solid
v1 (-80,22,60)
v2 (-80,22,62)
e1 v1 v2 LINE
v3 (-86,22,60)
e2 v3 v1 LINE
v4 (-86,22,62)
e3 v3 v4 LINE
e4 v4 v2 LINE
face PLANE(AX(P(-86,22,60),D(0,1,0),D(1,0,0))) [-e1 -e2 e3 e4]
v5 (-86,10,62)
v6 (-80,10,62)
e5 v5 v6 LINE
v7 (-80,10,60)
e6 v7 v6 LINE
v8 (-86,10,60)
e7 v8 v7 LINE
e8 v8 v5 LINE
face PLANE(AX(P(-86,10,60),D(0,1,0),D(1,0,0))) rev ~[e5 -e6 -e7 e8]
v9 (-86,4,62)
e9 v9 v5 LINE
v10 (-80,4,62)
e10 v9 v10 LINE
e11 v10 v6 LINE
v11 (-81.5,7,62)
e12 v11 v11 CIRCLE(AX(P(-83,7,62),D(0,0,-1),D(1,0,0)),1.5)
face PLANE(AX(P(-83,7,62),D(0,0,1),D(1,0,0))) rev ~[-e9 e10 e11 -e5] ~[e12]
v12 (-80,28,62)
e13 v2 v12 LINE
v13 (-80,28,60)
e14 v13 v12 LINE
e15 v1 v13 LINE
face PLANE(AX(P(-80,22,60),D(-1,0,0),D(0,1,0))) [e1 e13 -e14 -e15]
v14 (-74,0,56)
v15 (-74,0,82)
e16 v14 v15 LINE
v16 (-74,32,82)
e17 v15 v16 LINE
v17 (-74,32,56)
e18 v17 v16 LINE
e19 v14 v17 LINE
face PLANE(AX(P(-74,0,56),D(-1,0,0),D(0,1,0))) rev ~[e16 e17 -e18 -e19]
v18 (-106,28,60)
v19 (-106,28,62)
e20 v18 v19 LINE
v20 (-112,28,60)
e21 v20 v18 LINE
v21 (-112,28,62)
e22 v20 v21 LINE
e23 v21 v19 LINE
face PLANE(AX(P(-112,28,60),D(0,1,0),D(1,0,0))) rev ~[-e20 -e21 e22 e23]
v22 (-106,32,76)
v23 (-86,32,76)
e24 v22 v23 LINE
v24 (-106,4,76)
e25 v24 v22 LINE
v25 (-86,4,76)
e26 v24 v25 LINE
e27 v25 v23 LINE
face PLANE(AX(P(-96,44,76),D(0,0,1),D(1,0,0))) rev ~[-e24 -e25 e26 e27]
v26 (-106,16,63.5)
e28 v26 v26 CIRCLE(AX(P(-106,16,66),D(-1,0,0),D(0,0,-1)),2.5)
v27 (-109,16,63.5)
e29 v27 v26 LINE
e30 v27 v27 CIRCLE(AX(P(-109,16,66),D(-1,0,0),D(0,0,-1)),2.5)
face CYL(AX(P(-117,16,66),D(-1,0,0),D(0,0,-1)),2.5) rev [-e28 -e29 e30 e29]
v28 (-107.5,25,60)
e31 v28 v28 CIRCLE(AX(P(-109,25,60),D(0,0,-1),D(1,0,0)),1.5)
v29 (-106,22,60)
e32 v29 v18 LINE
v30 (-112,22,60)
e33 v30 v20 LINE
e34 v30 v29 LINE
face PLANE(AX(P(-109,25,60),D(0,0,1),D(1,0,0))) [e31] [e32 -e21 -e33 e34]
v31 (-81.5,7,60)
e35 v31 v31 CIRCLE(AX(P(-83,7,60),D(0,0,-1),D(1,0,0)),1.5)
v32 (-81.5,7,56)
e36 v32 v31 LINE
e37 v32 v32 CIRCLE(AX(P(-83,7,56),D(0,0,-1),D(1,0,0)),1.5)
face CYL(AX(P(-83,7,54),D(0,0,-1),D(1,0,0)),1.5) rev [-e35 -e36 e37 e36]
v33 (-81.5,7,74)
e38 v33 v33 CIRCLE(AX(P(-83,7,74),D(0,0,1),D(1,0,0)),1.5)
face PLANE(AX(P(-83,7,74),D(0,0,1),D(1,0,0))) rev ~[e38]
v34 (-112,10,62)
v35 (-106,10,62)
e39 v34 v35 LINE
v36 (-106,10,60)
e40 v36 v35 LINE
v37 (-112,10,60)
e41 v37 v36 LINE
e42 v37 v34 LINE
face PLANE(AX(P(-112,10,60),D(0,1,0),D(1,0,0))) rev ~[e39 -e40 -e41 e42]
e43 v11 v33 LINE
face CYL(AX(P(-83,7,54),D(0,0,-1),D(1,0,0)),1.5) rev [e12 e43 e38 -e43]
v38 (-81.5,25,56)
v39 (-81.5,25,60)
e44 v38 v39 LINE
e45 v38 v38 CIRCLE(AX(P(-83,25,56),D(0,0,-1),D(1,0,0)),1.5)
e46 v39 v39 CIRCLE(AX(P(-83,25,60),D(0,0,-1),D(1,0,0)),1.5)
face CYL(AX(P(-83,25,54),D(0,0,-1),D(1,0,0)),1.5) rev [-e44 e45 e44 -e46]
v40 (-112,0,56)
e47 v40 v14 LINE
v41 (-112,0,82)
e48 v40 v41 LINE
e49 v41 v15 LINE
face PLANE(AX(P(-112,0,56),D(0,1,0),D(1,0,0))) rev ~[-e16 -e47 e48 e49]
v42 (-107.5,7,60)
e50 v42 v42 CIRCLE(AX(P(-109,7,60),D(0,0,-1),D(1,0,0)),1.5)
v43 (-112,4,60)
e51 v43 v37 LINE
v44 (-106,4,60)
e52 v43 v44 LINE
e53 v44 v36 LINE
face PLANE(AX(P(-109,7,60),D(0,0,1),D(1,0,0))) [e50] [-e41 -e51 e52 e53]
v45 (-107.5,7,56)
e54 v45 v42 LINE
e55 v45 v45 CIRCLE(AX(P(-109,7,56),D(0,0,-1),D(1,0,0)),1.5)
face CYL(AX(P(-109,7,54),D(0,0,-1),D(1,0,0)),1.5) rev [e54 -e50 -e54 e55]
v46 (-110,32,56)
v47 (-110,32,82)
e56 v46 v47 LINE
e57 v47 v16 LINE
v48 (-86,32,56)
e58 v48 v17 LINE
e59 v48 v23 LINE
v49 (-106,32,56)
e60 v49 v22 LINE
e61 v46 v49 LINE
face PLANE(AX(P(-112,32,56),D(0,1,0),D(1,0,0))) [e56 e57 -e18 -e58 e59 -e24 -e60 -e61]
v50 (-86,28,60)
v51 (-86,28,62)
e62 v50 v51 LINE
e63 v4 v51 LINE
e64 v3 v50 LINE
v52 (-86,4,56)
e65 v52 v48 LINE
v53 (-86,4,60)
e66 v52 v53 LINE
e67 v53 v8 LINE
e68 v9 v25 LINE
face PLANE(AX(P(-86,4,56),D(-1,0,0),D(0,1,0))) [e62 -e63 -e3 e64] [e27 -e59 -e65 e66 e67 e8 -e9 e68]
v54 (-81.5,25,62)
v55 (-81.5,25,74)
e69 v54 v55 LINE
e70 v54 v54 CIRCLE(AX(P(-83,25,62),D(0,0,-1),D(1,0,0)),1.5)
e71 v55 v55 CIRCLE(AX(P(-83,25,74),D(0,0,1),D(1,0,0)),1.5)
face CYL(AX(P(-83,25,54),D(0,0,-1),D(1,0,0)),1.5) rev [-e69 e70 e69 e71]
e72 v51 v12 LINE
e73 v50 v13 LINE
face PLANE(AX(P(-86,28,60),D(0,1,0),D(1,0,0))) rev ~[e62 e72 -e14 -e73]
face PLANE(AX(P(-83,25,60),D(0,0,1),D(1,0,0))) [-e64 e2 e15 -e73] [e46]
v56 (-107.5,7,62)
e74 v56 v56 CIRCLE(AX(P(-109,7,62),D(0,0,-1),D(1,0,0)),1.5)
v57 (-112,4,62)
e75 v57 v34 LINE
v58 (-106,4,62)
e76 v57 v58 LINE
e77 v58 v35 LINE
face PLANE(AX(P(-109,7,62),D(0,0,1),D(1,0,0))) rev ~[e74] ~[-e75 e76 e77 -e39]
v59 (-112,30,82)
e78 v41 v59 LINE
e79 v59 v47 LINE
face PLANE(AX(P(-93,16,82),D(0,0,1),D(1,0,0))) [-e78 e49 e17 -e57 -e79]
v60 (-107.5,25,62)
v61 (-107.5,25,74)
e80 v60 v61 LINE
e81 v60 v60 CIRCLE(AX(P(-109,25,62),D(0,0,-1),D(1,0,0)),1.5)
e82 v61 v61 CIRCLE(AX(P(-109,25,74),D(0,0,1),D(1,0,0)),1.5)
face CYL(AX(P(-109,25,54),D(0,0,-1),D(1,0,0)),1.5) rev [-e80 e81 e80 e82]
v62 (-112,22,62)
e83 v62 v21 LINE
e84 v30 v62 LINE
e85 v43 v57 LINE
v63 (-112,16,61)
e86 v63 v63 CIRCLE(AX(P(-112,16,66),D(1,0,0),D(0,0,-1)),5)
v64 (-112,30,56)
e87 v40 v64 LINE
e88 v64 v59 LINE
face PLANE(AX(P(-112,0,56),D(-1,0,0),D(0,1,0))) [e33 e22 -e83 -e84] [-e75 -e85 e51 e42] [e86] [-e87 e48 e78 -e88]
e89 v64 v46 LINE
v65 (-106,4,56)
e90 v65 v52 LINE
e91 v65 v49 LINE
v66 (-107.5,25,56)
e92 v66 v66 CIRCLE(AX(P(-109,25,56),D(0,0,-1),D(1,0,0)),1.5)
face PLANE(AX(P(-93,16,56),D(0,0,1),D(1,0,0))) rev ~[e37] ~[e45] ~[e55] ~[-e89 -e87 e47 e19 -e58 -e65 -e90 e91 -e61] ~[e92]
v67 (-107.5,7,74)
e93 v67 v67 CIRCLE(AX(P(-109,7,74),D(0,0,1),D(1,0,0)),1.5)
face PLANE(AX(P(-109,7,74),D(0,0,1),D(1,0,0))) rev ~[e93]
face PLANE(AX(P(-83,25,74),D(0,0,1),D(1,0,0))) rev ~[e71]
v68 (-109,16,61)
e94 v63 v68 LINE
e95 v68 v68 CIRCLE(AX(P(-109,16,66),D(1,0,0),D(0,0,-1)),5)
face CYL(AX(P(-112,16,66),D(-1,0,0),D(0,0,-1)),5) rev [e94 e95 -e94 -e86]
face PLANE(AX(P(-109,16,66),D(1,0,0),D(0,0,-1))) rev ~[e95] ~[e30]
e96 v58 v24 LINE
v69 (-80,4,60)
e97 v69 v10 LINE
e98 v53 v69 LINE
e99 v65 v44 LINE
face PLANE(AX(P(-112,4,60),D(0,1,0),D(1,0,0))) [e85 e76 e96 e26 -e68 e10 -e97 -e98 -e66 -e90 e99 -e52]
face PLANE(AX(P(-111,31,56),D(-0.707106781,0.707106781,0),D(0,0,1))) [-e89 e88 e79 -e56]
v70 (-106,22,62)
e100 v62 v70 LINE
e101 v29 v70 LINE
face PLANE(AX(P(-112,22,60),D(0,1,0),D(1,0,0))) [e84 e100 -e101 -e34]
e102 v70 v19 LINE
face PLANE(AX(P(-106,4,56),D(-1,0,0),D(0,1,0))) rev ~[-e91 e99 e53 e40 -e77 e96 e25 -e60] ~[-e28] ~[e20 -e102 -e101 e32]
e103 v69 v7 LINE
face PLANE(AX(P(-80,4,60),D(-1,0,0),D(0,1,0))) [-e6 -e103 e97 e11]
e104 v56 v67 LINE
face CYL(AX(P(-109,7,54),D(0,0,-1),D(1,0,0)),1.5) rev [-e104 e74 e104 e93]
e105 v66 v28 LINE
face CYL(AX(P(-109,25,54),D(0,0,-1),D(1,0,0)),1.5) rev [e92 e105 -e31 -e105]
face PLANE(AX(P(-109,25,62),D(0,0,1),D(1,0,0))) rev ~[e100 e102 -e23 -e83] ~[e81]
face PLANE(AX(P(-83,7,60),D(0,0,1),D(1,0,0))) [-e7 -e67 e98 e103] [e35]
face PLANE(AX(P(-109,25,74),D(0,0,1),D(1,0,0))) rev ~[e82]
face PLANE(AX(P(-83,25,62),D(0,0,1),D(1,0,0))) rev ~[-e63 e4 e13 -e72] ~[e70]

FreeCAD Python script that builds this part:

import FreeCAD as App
import Part
import Sketcher
from FreeCAD import Vector
Q = App.Units.Quantity


def edges_at(feature, points):
    """Names of the edges that pass closest to the given points."""
    edges = feature.Shape.Edges
    near = lambda p: min(range(len(edges)), key=lambda i: edges[i].distToShape(Part.Vertex(*p))[0])
    return sorted({f"Edge{near(p) + 1}" for p in points})


def add_polygon(sketch, points):
    """Adds a closed chain of lines whose ends are joined by coincident constraints."""
    first, n = sketch.GeometryCount, len(points)
    for a, b in zip(points, points[1:] + points[:1]):
        sketch.addGeometry(Part.LineSegment(App.Vector(*a, 0), App.Vector(*b, 0)), False)
    for i in range(n):
        sketch.addConstraint(Sketcher.Constraint("Coincident", first + i, 2, first + (i + 1) % n, 1))

doc = App.newDocument("Part")
body = doc.addObject("PartDesign::Body", "Body")

# Sketch on YZ plane
sketch1 = body.newObject("Sketcher::SketchObject", "Sketch")
sketch1.AttachmentSupport = (doc.getObject("YZ_Plane"), [""])
sketch1.MapMode = "FlatFace"
sketch1.AttachmentOffset = App.Placement(Vector(0, 0, -112), App.Rotation())
sketch1.addGeometry(Part.Circle(Vector(16, 66, 0), Vector(0, 0, 1), 5), False)
sketch1.addConstraint([
    Sketcher.Constraint("Diameter", 0, Q("10 mm")),
    Sketcher.Constraint("DistanceX", -1, 1, 0, 3, Q("16 mm")),
    Sketcher.Constraint("DistanceY", -1, 1, 0, 3, Q("66 mm")),
])
pad1 = body.newObject("PartDesign::Pad", "Pad")
pad1.Profile = sketch1
pad1.Length = 3
body2 = doc.addObject("PartDesign::Body", "Body001")

# Sketch on YZ plane
sketch2 = body2.newObject("Sketcher::SketchObject", "Sketch001")
sketch2.AttachmentSupport = (doc.getObject("YZ_Plane001"), [""])
sketch2.MapMode = "FlatFace"
sketch2.AttachmentOffset = App.Placement(Vector(0, 0, -117), App.Rotation())
sketch2.addGeometry(Part.Circle(Vector(16, 66, 0), Vector(0, 0, 1), 2.5), False)
sketch2.addConstraint([
    Sketcher.Constraint("Diameter", 0, Q("5 mm")),
    Sketcher.Constraint("DistanceX", -1, 1, 0, 3, Q("16 mm")),
    Sketcher.Constraint("DistanceY", -1, 1, 0, 3, Q("66 mm")),
])
pad2 = body2.newObject("PartDesign::Pad", "Pad001")
pad2.Profile = sketch2
pad2.Length = 20
body3 = doc.addObject("PartDesign::Body", "Body002")

# Sketch on XY plane
sketch3 = body3.newObject("Sketcher::SketchObject", "Sketch002")
sketch3.AttachmentSupport = (doc.getObject("XY_Plane002"), [""])
sketch3.MapMode = "FlatFace"
sketch3.AttachmentOffset = App.Placement(Vector(0, 0, 54), App.Rotation())
sketch3.addGeometry(Part.Circle(Vector(-83, 25, 0), Vector(0, 0, 1), 1.5), False)
sketch3.addConstraint([
    Sketcher.Constraint("Diameter", 0, Q("3 mm")),
    Sketcher.Constraint("DistanceX", 0, 3, -1, 1, Q("83 mm")),
    Sketcher.Constraint("DistanceY", -1, 1, 0, 3, Q("25 mm")),
])
pad3 = body3.newObject("PartDesign::Pad", "Pad002")
pad3.Profile = sketch3
pad3.Length = 20
body4 = doc.addObject("PartDesign::Body", "Body003")

# Sketch on XY plane
sketch4 = body4.newObject("Sketcher::SketchObject", "Sketch003")
sketch4.AttachmentSupport = (doc.getObject("XY_Plane003"), [""])
sketch4.MapMode = "FlatFace"
sketch4.AttachmentOffset = App.Placement(Vector(0, 0, 54), App.Rotation())
sketch4.addGeometry(Part.Circle(Vector(-109, 7, 0), Vector(0, 0, 1), 1.5), False)
sketch4.addConstraint([
    Sketcher.Constraint("Diameter", 0, Q("3 mm")),
    Sketcher.Constraint("DistanceX", 0, 3, -1, 1, Q("109 mm")),
    Sketcher.Constraint("DistanceY", -1, 1, 0, 3, Q("7 mm")),
])
pad4 = body4.newObject("PartDesign::Pad", "Pad003")
pad4.Profile = sketch4
pad4.Length = 20
body5 = doc.addObject("PartDesign::Body", "Body004")

# Sketch on XY plane
sketch5 = body5.newObject("Sketcher::SketchObject", "Sketch004")
sketch5.AttachmentSupport = (doc.getObject("XY_Plane004"), [""])
sketch5.MapMode = "FlatFace"
sketch5.AttachmentOffset = App.Placement(Vector(0, 0, 54), App.Rotation())
sketch5.addGeometry(Part.Circle(Vector(-109, 25, 0), Vector(0, 0, 1), 1.5), False)
sketch5.addConstraint([
    Sketcher.Constraint("Diameter", 0, Q("3 mm")),
    Sketcher.Constraint("DistanceX", 0, 3, -1, 1, Q("109 mm")),
    Sketcher.Constraint("DistanceY", -1, 1, 0, 3, Q("25 mm")),
])
pad5 = body5.newObject("PartDesign::Pad", "Pad004")
pad5.Profile = sketch5
pad5.Length = 20
body6 = doc.addObject("PartDesign::Body", "Body005")
body6.AllowCompound = True

# Sketch on XY plane
sketch6 = body6.newObject("Sketcher::SketchObject", "Sketch005")
sketch6.AttachmentSupport = (doc.getObject("XY_Plane005"), [""])
sketch6.MapMode = "FlatFace"
sketch6.AttachmentOffset = App.Placement(Vector(0, 0, 54), App.Rotation())
sketch6.addGeometry(Part.Circle(Vector(-83, 7, 0), Vector(0, 0, 1), 1.5), False)
sketch6.addConstraint([
    Sketcher.Constraint("Diameter", 0, Q("3 mm")),
    Sketcher.Constraint("DistanceX", 0, 3, -1, 1, Q("83 mm")),
    Sketcher.Constraint("DistanceY", -1, 1, 0, 3, Q("7 mm")),
])
pad6 = body6.newObject("PartDesign::Pad", "Pad005")
pad6.Profile = sketch6
pad6.Length = 20
doc.recompute()

boolean = body6.newObject("PartDesign::Boolean", "Boolean")
boolean.Type = "Fuse"
boolean.addObjects([body3])
doc.recompute()

boolean2 = body6.newObject("PartDesign::Boolean", "Boolean001")
boolean2.Type = "Fuse"
boolean2.addObjects([body4])
doc.recompute()

boolean3 = body6.newObject("PartDesign::Boolean", "Boolean002")
boolean3.Type = "Fuse"
boolean3.addObjects([body5])
body7 = doc.addObject("PartDesign::Body", "Body006")

# Sketch on XY plane
sketch7 = body7.newObject("Sketcher::SketchObject", "Sketch006")
sketch7.AttachmentSupport = (doc.getObject("XY_Plane006"), [""])
sketch7.MapMode = "FlatFace"
sketch7.AttachmentOffset = App.Placement(Vector(0, 0, 60), App.Rotation())
add_polygon(sketch7, [(-112, 28), (-112, 22), (-106, 22), (-106, 28)])  # lines 0-3
sketch7.addConstraint([
    Sketcher.Constraint("Vertical", 0),
    Sketcher.Constraint("Horizontal", 1),
    Sketcher.Constraint("Vertical", 2),
    Sketcher.Constraint("Horizontal", 3),
    Sketcher.Constraint("Equal", 3, 0),
    Sketcher.Constraint("DistanceX", 1, 1, 1, 2, Q("6 mm")),
    Sketcher.Constraint("DistanceX", 0, 2, -1, 1, Q("112 mm")),
    Sketcher.Constraint("DistanceY", -1, 1, 0, 2, Q("22 mm")),
])
pad7 = body7.newObject("PartDesign::Pad", "Pad006")
pad7.Profile = sketch7
pad7.Length = 2
body8 = doc.addObject("PartDesign::Body", "Body007")

# Sketch on XY plane
sketch8 = body8.newObject("Sketcher::SketchObject", "Sketch007")
sketch8.AttachmentSupport = (doc.getObject("XY_Plane007"), [""])
sketch8.MapMode = "FlatFace"
sketch8.AttachmentOffset = App.Placement(Vector(0, 0, 60), App.Rotation())
add_polygon(sketch8, [(-86, 10), (-86, 4), (-80, 4), (-80, 10)])  # lines 0-3
sketch8.addConstraint([
    Sketcher.Constraint("Vertical", 0),
    Sketcher.Constraint("Horizontal", 1),
    Sketcher.Constraint("Vertical", 2),
    Sketcher.Constraint("Horizontal", 3),
    Sketcher.Constraint("Equal", 3, 0),
    Sketcher.Constraint("DistanceX", 1, 1, 1, 2, Q("6 mm")),
    Sketcher.Constraint("DistanceX", 0, 2, -1, 1, Q("86 mm")),
    Sketcher.Constraint("DistanceY", -1, 1, 0, 2, Q("4 mm")),
])
pad8 = body8.newObject("PartDesign::Pad", "Pad007")
pad8.Profile = sketch8
pad8.Length = 2
body9 = doc.addObject("PartDesign::Body", "Body008")

# Sketch on XY plane
sketch9 = body9.newObject("Sketcher::SketchObject", "Sketch008")
sketch9.AttachmentSupport = (doc.getObject("XY_Plane008"), [""])
sketch9.MapMode = "FlatFace"
sketch9.AttachmentOffset = App.Placement(Vector(0, 0, 60), App.Rotation())
add_polygon(sketch9, [(-86, 28), (-86, 22), (-80, 22), (-80, 28)])  # lines 0-3
sketch9.addConstraint([
    Sketcher.Constraint("Vertical", 0),
    Sketcher.Constraint("Horizontal", 1),
    Sketcher.Constraint("Vertical", 2),
    Sketcher.Constraint("Horizontal", 3),
    Sketcher.Constraint("Equal", 3, 0),
    Sketcher.Constraint("DistanceX", 1, 1, 1, 2, Q("6 mm")),
    Sketcher.Constraint("DistanceX", 0, 2, -1, 1, Q("86 mm")),
    Sketcher.Constraint("DistanceY", -1, 1, 0, 2, Q("22 mm")),
])
pad9 = body9.newObject("PartDesign::Pad", "Pad008")
pad9.Profile = sketch9
pad9.Length = 2
body10 = doc.addObject("PartDesign::Body", "Body009")
body10.AllowCompound = True

# Sketch on XY plane
sketch10 = body10.newObject("Sketcher::SketchObject", "Sketch009")
sketch10.AttachmentSupport = (doc.getObject("XY_Plane009"), [""])
sketch10.MapMode = "FlatFace"
sketch10.AttachmentOffset = App.Placement(Vector(0, 0, 60), App.Rotation())
add_polygon(sketch10, [(-112, 10), (-112, 4), (-106, 4), (-106, 10)])  # lines 0-3
sketch10.addConstraint([
    Sketcher.Constraint("Vertical", 0),
    Sketcher.Constraint("Horizontal", 1),
    Sketcher.Constraint("Vertical", 2),
    Sketcher.Constraint("Horizontal", 3),
    Sketcher.Constraint("Equal", 3, 0),
    Sketcher.Constraint("DistanceX", 1, 1, 1, 2, Q("6 mm")),
    Sketcher.Constraint("DistanceX", 0, 2, -1, 1, Q("112 mm")),
    Sketcher.Constraint("DistanceY", -1, 1, 0, 2, Q("4 mm")),
])
pad10 = body10.newObject("PartDesign::Pad", "Pad009")
pad10.Profile = sketch10
pad10.Length = 2
doc.recompute()

boolean4 = body10.newObject("PartDesign::Boolean", "Boolean003")
boolean4.Type = "Fuse"
boolean4.addObjects([body7])
doc.recompute()

boolean5 = body10.newObject("PartDesign::Boolean", "Boolean004")
boolean5.Type = "Fuse"
boolean5.addObjects([body8])
doc.recompute()

boolean6 = body10.newObject("PartDesign::Boolean", "Boolean005")
boolean6.Type = "Fuse"
boolean6.addObjects([body9])
body11 = doc.addObject("PartDesign::Body", "Body010")

# Sketch on XY plane
sketch11 = body11.newObject("Sketcher::SketchObject", "Sketch010")
sketch11.AttachmentSupport = (doc.getObject("XY_Plane010"), [""])
sketch11.MapMode = "FlatFace"
sketch11.AttachmentOffset = App.Placement(Vector(0, 0, 56), App.Rotation())
add_polygon(sketch11, [(-106, 84), (-106, 4), (-86, 4), (-86, 84)])  # lines 0-3
sketch11.addConstraint([
    Sketcher.Constraint("Vertical", 0),
    Sketcher.Constraint("Horizontal", 1),
    Sketcher.Constraint("Vertical", 2),
    Sketcher.Constraint("Horizontal", 3),
    Sketcher.Constraint("DistanceX", 1, 1, 1, 2, Q("20 mm")),
    Sketcher.Constraint("DistanceY", 0, 2, 0, 1, Q("80 mm")),
    Sketcher.Constraint("DistanceX", 0, 2, -1, 1, Q("106 mm")),
    Sketcher.Constraint("DistanceY", -1, 1, 0, 2, Q("4 mm")),
])
pad11 = body11.newObject("PartDesign::Pad", "Pad010")
pad11.Profile = sketch11
pad11.Length = 20
body12 = doc.addObject("PartDesign::Body", "Body011")

# Sketch on XY plane
sketch12 = body12.newObject("Sketcher::SketchObject", "Sketch011")
sketch12.AttachmentSupport = (doc.getObject("XY_Plane011"), [""])
sketch12.MapMode = "FlatFace"
sketch12.AttachmentOffset = App.Placement(Vector(0, 0, 56), App.Rotation())
add_polygon(sketch12, [(-112, 32), (-112, 0), (-74, 0), (-74, 32)])  # lines 0-3
sketch12.addConstraint([
    Sketcher.Constraint("Vertical", 0),
    Sketcher.Constraint("Horizontal", 1),
    Sketcher.Constraint("Vertical", 2),
    Sketcher.Constraint("Horizontal", 3),
    Sketcher.Constraint("PointOnObject", 0, 2, -1),
    Sketcher.Constraint("DistanceX", 1, 1, 1, 2, Q("38 mm")),
    Sketcher.Constraint("DistanceY", 0, 2, 0, 1, Q("32 mm")),
    Sketcher.Constraint("DistanceX", 0, 2, -1, 1, Q("112 mm")),
])
pad12 = body12.newObject("PartDesign::Pad", "Pad011")
pad12.Profile = sketch12
pad12.Length = 26
doc.recompute()

boolean7 = body12.newObject("PartDesign::Boolean", "Boolean006")
boolean7.Type = "Cut"
boolean7.addObjects([body11])
doc.recompute()

boolean8 = body12.newObject("PartDesign::Boolean", "Boolean007")
boolean8.Type = "Cut"
boolean8.addObjects([body10])
doc.recompute()

boolean9 = body12.newObject("PartDesign::Boolean", "Boolean008")
boolean9.Type = "Cut"
boolean9.addObjects([body6])
doc.recompute()

boolean10 = body12.newObject("PartDesign::Boolean", "Boolean009")
boolean10.Type = "Cut"
boolean10.addObjects([body2])
doc.recompute()

boolean11 = body12.newObject("PartDesign::Boolean", "Boolean010")
boolean11.Type = "Cut"
boolean11.addObjects([body])
doc.recompute()

chamfer = body12.newObject("PartDesign::Chamfer", "Chamfer")
chamfer.Base = (boolean11, edges_at(boolean11, [(-112, 32, 69)]))
chamfer.Size = 2

doc.recompute()
